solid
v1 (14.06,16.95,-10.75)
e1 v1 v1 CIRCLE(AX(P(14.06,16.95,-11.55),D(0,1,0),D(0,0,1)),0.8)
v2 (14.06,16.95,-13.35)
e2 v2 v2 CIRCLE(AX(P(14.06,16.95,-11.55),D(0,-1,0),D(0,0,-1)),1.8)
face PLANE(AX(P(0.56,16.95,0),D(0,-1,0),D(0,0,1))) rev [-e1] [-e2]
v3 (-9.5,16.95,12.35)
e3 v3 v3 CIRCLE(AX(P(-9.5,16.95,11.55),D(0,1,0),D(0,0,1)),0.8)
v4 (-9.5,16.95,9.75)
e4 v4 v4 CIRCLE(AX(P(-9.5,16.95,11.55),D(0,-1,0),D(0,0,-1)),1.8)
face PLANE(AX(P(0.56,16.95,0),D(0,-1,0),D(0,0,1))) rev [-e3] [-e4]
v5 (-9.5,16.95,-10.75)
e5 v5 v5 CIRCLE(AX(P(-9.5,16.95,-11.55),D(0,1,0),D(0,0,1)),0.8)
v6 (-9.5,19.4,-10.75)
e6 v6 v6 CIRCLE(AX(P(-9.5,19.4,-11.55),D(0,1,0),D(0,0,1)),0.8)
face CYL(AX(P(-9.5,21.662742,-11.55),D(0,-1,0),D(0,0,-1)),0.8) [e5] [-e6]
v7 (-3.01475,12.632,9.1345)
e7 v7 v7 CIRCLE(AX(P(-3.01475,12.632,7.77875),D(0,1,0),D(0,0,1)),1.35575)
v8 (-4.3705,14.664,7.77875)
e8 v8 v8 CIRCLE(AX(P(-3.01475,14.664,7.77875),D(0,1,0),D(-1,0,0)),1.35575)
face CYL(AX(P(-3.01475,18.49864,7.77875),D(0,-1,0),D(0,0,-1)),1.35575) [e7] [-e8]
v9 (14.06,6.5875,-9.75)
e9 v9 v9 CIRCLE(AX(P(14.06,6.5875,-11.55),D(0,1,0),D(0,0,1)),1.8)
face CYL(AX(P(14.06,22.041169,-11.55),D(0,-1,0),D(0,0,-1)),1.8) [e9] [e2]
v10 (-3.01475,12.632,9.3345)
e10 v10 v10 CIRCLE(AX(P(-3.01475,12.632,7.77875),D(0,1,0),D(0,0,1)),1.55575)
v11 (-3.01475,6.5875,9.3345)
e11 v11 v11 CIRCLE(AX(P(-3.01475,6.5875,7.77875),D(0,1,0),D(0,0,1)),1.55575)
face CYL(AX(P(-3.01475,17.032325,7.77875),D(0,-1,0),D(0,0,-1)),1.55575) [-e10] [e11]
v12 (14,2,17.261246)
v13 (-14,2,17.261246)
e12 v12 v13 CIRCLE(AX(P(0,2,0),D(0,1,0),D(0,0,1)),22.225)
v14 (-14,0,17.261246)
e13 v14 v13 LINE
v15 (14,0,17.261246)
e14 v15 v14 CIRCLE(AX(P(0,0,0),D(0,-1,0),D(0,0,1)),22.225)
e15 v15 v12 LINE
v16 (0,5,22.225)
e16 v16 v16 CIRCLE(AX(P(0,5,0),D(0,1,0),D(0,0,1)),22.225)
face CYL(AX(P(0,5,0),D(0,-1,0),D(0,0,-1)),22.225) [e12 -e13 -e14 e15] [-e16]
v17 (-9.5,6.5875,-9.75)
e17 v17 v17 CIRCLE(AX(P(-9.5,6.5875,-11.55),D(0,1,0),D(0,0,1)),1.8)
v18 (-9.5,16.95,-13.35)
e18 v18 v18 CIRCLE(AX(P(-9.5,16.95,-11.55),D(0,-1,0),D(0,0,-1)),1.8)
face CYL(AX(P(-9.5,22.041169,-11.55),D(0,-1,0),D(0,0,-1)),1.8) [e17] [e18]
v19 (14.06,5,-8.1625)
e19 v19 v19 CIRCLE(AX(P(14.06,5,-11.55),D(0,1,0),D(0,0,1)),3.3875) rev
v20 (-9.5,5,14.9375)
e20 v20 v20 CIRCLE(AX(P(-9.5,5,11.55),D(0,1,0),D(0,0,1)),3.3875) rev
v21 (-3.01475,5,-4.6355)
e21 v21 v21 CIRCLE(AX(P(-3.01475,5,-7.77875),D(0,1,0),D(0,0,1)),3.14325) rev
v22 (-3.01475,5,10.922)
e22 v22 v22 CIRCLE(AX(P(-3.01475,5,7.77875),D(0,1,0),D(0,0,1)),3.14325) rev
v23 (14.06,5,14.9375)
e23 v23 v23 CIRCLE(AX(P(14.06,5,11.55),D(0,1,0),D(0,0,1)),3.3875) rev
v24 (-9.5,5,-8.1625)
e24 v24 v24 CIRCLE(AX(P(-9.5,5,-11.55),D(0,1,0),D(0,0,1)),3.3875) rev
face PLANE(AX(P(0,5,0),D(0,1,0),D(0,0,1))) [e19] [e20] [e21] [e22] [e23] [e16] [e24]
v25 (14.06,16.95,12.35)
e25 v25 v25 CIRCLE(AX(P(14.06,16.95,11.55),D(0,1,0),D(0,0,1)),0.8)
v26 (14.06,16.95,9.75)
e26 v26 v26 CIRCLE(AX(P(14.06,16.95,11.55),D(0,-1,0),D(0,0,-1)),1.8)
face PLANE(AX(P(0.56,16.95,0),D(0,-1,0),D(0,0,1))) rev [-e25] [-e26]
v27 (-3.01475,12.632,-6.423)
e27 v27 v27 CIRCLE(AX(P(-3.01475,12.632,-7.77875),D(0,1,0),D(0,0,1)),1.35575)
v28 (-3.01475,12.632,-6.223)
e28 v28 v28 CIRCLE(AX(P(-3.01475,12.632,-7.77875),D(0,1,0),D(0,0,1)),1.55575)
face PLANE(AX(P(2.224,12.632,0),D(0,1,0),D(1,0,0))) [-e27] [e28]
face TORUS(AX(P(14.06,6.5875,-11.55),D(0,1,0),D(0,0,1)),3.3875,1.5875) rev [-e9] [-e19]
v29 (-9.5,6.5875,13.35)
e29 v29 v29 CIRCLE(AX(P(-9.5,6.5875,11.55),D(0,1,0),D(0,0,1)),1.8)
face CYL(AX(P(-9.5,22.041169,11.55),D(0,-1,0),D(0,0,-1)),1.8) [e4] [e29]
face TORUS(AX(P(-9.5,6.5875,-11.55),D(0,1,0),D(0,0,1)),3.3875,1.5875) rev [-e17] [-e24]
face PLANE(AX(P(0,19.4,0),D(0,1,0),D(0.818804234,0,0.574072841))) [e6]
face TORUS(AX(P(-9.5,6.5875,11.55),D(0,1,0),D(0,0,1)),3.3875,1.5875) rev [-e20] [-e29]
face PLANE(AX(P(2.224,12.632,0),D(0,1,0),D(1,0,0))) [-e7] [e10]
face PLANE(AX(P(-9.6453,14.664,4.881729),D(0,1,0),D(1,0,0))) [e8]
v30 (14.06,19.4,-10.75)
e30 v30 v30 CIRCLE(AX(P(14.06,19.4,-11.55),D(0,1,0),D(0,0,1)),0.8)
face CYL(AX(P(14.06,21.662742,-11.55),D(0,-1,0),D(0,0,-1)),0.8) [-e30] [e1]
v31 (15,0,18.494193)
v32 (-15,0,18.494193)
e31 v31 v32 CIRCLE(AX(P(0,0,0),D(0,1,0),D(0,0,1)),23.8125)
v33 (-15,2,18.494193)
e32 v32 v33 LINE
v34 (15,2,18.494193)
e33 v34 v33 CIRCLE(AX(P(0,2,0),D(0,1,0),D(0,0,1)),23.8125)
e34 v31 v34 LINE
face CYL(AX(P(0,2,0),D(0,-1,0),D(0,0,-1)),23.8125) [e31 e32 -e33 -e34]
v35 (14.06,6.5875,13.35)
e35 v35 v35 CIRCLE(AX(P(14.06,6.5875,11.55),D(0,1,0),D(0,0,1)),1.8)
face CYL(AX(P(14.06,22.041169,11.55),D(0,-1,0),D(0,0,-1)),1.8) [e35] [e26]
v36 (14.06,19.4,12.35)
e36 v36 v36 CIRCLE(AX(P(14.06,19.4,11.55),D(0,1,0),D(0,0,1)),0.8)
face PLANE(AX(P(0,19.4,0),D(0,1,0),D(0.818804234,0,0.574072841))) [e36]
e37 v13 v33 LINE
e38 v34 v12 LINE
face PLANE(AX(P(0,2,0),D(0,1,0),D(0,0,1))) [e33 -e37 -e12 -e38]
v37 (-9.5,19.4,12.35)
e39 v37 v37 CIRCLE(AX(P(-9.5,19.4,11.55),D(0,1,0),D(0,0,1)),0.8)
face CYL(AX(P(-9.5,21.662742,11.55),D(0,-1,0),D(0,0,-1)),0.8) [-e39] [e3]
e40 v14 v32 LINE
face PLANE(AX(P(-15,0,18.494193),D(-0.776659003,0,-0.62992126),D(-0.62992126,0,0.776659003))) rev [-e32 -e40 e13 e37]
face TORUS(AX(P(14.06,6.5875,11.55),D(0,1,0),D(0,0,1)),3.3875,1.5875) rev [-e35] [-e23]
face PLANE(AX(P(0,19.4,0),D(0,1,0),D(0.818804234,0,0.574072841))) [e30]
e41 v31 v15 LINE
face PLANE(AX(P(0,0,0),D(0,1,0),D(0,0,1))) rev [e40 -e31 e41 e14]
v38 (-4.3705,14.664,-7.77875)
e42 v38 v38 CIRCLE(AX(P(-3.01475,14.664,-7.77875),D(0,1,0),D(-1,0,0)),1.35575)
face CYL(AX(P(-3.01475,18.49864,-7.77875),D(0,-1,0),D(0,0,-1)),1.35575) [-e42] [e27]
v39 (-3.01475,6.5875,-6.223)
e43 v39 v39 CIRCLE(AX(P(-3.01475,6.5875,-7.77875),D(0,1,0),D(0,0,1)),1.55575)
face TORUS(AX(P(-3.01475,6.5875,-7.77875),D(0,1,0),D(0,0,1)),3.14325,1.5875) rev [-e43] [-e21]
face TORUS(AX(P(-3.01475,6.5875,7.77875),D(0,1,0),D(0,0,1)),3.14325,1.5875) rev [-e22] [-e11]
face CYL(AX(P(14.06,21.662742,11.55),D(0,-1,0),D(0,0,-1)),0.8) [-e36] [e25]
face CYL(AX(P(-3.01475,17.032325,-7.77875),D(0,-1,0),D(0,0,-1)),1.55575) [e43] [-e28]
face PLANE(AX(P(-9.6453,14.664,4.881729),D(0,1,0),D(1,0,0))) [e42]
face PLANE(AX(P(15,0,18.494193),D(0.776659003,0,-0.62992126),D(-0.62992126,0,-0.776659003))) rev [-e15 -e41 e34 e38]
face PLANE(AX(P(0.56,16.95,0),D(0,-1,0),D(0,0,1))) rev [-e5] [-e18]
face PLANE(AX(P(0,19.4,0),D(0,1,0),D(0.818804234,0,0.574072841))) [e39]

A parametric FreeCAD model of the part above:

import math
import FreeCAD as App
import Part
import Sketcher

V = App.Vector


def edges_at(feature, points):
    """Names of the edges that pass closest to the given points."""
    edges = feature.Shape.Edges
    near = lambda p: min(range(len(edges)), key=lambda i: edges[i].distToShape(Part.Vertex(*p))[0])
    return sorted({f"Edge{near(p) + 1}" for p in points})

doc = App.newDocument("Part")
body = doc.addObject("PartDesign::Body", "Body")

# Sketch on XZ plane
sketch1 = body.newObject("Sketcher::SketchObject", "Sketch")
sketch1.AttachmentSupport = (doc.getObject("XZ_Plane"), [""])
sketch1.MapMode = "FlatFace"
sketch1.addGeometry(Part.Circle(V(0, 0, 0), V(0, 0, 1), 24), False)
sketch1.addConstraint([
    Sketcher.Constraint("Coincident", 0, 3, -1, 1),
    Sketcher.Constraint("Diameter", 0, 47.625),
])
pad1 = body.newObject("PartDesign::Pad", "Pad")
pad1.Profile = sketch1
pad1.Length = 2
pad1.Reversed = True

# Sketch on XZ plane
sketch2 = body.newObject("Sketcher::SketchObject", "Sketch001")
sketch2.AttachmentSupport = (doc.getObject("XZ_Plane"), [""])
sketch2.MapMode = "FlatFace"
sketch2.AttachmentOffset = App.Placement(V(0, 0, -2), App.Rotation())
sketch2.addGeometry(Part.Circle(V(0, 0, 0), V(0, 0, 1), 22), False)
sketch2.addConstraint([
    Sketcher.Constraint("Coincident", 0, 3, -1, 1),
    Sketcher.Constraint("Diameter", 0, 44.45),
])
pad2 = body.newObject("PartDesign::Pad", "Pad001")
pad2.Profile = sketch2
pad2.Length = 3
pad2.Reversed = True

# Sketch on XZ plane
sketch3 = body.newObject("Sketcher::SketchObject", "Sketch002")
sketch3.AttachmentSupport = (doc.getObject("XZ_Plane"), [""])
sketch3.MapMode = "FlatFace"
sketch3.AttachmentOffset = App.Placement(V(0, 0, -2), App.Rotation())
sketch3.addGeometry([
    Part.LineSegment(V(-14, 17.3, 0), V(-15, 18.5, 0)),
    Part.ArcOfCircle(Part.Circle(V(0, 0, 0), V(0, 0, 1), 23.8), math.radians(51), math.radians(129)),
    Part.LineSegment(V(15, 18.5, 0), V(14, 17.3, 0)),
    Part.ArcOfCircle(Part.Circle(V(0, 0, 0), V(0, 0, 1), 22.2), math.radians(51), math.radians(129)),
], False)
sketch3.addConstraint([
    Sketcher.Constraint("Coincident", 0, 2, 1, 2),
    Sketcher.Constraint("Coincident", 1, 1, 2, 1),
    Sketcher.Constraint("Coincident", 2, 2, 3, 1),
    Sketcher.Constraint("Coincident", 3, 2, 0, 1),
    Sketcher.Constraint("Coincident", 1, 3, -1, 1),
    Sketcher.Constraint("Coincident", 3, 3, -1, 1),
    Sketcher.Constraint("Horizontal", 0, 2, 1, 1),
    Sketcher.Constraint("Horizontal", 2, 2, 3, 2),
    Sketcher.Constraint("DistanceX", 0, 2, -1, 1, 15.0),
    Sketcher.Constraint("DistanceX", -1, 1, 2, 2, 14.0),
    Sketcher.Constraint("Radius", 3, 22.225),
    Sketcher.Constraint("Radius", 1, 23.8125),
])
pocket1 = body.newObject("PartDesign::Pocket", "Pocket")
pocket1.Profile = sketch3
pocket1.Type = "ThroughAll"
pocket1.Reversed = True

# Sketch on XZ plane
sketch4 = body.newObject("Sketcher::SketchObject", "Sketch003")
sketch4.AttachmentSupport = (doc.getObject("XZ_Plane"), [""])
sketch4.MapMode = "FlatFace"
sketch4.AttachmentOffset = App.Placement(V(0, 0, -5), App.Rotation())
sketch4.addGeometry([
    Part.Circle(V(-9.5, -11.6, 0), V(0, 0, 1), 1.8),
    Part.Circle(V(-9.5, 11.6, 0), V(0, 0, 1), 1.8),
    Part.Circle(V(14.1, 11.6, 0), V(0, 0, 1), 1.8),
    Part.Circle(V(14.1, -11.6, 0), V(0, 0, 1), 1.8),
], False)
sketch4.addConstraint([
    Sketcher.Constraint("Equal", 0, 1),
    Sketcher.Constraint("Equal", 1, 2),
    Sketcher.Constraint("Equal", 2, 3),
    Sketcher.Constraint("Symmetric", 0, 3, 1, 3, -1),
    Sketcher.Constraint("Symmetric", 2, 3, 3, 3, -1),
    Sketcher.Constraint("Horizontal", 1, 3, 2, 3),
    Sketcher.Constraint("Diameter", 0, 3.6),
    Sketcher.Constraint("DistanceX", 0, 3, -1, 1, 9.5),
    Sketcher.Constraint("DistanceY", 0, 3, 1, 3, 23.1),
    Sketcher.Constraint("DistanceX", -1, 1, 2, 3, 14.06),
])
pad3 = body.newObject("PartDesign::Pad", "Pad002")
pad3.Profile = sketch4
pad3.Length = 11.95
pad3.Reversed = True

# Sketch on XZ plane
sketch5 = body.newObject("Sketcher::SketchObject", "Sketch004")
sketch5.AttachmentSupport = (doc.getObject("XZ_Plane"), [""])
sketch5.MapMode = "FlatFace"
sketch5.AttachmentOffset = App.Placement(V(0, 0, -5), App.Rotation())
sketch5.addGeometry([
    Part.Circle(V(-3, 7.8, 0), V(0, 0, 1), 1.6),
    Part.Circle(V(-3, -7.8, 0), V(0, 0, 1), 1.6),
], False)
sketch5.addConstraint([
    Sketcher.Constraint("Equal", 0, 1),
    Sketcher.Constraint("Symmetric", 0, 3, 1, 3, -1),
    Sketcher.Constraint("Diameter", 0, 3.1115),
    Sketcher.Constraint("DistanceY", 1, 3, 0, 3, 15.5575),
    Sketcher.Constraint("DistanceX", 0, 3, -1, 1, 3.01475),
])
pad4 = body.newObject("PartDesign::Pad", "Pad003")
pad4.Profile = sketch5
pad4.Length = 7.632
pad4.Reversed = True

# Sketch on XZ plane
sketch6 = body.newObject("Sketcher::SketchObject", "Sketch005")
sketch6.AttachmentSupport = (doc.getObject("XZ_Plane"), [""])
sketch6.MapMode = "FlatFace"
sketch6.AttachmentOffset = App.Placement(V(0, 0, -16.95), App.Rotation())
sketch6.addGeometry([
    Part.Circle(V(-9.5, -11.6, 0), V(0, 0, 1), 0.8),
    Part.Circle(V(-9.5, 11.6, 0), V(0, 0, 1), 0.8),
    Part.Circle(V(14.1, 11.6, 0), V(0, 0, 1), 0.8),
    Part.Circle(V(14.1, -11.6, 0), V(0, 0, 1), 0.8),
], False)
sketch6.addConstraint([
    Sketcher.Constraint("Equal", 0, 1),
    Sketcher.Constraint("Equal", 1, 2),
    Sketcher.Constraint("Equal", 2, 3),
    Sketcher.Constraint("Symmetric", 0, 3, 1, 3, -1),
    Sketcher.Constraint("Symmetric", 2, 3, 3, 3, -1),
    Sketcher.Constraint("Horizontal", 1, 3, 2, 3),
    Sketcher.Constraint("Diameter", 0, 1.6),
    Sketcher.Constraint("DistanceX", 0, 3, -1, 1, 9.5),
    Sketcher.Constraint("DistanceY", 0, 3, 1, 3, 23.1),
    Sketcher.Constraint("DistanceX", -1, 1, 2, 3, 14.06),
])
pad5 = body.newObject("PartDesign::Pad", "Pad004")
pad5.Profile = sketch6
pad5.Length = 2.45
pad5.Reversed = True

# Sketch on XZ plane
sketch7 = body.newObject("Sketcher::SketchObject", "Sketch006")
sketch7.AttachmentSupport = (doc.getObject("XZ_Plane"), [""])
sketch7.MapMode = "FlatFace"
sketch7.AttachmentOffset = App.Placement(V(0, 0, -12.632), App.Rotation())
sketch7.addGeometry([
    Part.Circle(V(-3, -7.8, 0), V(0, 0, 1), 1.4),
    Part.Circle(V(-3, 7.8, 0), V(0, 0, 1), 1.4),
], False)
sketch7.addConstraint([
    Sketcher.Constraint("Equal", 0, 1),
    Sketcher.Constraint("Symmetric", 0, 3, 1, 3, -1),
    Sketcher.Constraint("Diameter", 0, 2.7115),
    Sketcher.Constraint("DistanceY", 0, 3, 1, 3, 15.5575),
    Sketcher.Constraint("DistanceX", 0, 3, -1, 1, 3.01475),
])
pad6 = body.newObject("PartDesign::Pad", "Pad005")
pad6.Profile = sketch7
pad6.Length = 2.032
pad6.Reversed = True
doc.recompute()

fillet = body.newObject("PartDesign::Fillet", "Fillet")
fillet.Base = (pad6, edges_at(pad6, [
    (-11.3, 5, -11.55),
    (-11.3, 5, 11.55),
    (12.26, 5, 11.55),
    (12.26, 5, -11.55),
    (-4.571, 5, 7.779),
    (-4.571, 5, -7.779),
]))
fillet.Radius = 1.5875

doc.recompute()
